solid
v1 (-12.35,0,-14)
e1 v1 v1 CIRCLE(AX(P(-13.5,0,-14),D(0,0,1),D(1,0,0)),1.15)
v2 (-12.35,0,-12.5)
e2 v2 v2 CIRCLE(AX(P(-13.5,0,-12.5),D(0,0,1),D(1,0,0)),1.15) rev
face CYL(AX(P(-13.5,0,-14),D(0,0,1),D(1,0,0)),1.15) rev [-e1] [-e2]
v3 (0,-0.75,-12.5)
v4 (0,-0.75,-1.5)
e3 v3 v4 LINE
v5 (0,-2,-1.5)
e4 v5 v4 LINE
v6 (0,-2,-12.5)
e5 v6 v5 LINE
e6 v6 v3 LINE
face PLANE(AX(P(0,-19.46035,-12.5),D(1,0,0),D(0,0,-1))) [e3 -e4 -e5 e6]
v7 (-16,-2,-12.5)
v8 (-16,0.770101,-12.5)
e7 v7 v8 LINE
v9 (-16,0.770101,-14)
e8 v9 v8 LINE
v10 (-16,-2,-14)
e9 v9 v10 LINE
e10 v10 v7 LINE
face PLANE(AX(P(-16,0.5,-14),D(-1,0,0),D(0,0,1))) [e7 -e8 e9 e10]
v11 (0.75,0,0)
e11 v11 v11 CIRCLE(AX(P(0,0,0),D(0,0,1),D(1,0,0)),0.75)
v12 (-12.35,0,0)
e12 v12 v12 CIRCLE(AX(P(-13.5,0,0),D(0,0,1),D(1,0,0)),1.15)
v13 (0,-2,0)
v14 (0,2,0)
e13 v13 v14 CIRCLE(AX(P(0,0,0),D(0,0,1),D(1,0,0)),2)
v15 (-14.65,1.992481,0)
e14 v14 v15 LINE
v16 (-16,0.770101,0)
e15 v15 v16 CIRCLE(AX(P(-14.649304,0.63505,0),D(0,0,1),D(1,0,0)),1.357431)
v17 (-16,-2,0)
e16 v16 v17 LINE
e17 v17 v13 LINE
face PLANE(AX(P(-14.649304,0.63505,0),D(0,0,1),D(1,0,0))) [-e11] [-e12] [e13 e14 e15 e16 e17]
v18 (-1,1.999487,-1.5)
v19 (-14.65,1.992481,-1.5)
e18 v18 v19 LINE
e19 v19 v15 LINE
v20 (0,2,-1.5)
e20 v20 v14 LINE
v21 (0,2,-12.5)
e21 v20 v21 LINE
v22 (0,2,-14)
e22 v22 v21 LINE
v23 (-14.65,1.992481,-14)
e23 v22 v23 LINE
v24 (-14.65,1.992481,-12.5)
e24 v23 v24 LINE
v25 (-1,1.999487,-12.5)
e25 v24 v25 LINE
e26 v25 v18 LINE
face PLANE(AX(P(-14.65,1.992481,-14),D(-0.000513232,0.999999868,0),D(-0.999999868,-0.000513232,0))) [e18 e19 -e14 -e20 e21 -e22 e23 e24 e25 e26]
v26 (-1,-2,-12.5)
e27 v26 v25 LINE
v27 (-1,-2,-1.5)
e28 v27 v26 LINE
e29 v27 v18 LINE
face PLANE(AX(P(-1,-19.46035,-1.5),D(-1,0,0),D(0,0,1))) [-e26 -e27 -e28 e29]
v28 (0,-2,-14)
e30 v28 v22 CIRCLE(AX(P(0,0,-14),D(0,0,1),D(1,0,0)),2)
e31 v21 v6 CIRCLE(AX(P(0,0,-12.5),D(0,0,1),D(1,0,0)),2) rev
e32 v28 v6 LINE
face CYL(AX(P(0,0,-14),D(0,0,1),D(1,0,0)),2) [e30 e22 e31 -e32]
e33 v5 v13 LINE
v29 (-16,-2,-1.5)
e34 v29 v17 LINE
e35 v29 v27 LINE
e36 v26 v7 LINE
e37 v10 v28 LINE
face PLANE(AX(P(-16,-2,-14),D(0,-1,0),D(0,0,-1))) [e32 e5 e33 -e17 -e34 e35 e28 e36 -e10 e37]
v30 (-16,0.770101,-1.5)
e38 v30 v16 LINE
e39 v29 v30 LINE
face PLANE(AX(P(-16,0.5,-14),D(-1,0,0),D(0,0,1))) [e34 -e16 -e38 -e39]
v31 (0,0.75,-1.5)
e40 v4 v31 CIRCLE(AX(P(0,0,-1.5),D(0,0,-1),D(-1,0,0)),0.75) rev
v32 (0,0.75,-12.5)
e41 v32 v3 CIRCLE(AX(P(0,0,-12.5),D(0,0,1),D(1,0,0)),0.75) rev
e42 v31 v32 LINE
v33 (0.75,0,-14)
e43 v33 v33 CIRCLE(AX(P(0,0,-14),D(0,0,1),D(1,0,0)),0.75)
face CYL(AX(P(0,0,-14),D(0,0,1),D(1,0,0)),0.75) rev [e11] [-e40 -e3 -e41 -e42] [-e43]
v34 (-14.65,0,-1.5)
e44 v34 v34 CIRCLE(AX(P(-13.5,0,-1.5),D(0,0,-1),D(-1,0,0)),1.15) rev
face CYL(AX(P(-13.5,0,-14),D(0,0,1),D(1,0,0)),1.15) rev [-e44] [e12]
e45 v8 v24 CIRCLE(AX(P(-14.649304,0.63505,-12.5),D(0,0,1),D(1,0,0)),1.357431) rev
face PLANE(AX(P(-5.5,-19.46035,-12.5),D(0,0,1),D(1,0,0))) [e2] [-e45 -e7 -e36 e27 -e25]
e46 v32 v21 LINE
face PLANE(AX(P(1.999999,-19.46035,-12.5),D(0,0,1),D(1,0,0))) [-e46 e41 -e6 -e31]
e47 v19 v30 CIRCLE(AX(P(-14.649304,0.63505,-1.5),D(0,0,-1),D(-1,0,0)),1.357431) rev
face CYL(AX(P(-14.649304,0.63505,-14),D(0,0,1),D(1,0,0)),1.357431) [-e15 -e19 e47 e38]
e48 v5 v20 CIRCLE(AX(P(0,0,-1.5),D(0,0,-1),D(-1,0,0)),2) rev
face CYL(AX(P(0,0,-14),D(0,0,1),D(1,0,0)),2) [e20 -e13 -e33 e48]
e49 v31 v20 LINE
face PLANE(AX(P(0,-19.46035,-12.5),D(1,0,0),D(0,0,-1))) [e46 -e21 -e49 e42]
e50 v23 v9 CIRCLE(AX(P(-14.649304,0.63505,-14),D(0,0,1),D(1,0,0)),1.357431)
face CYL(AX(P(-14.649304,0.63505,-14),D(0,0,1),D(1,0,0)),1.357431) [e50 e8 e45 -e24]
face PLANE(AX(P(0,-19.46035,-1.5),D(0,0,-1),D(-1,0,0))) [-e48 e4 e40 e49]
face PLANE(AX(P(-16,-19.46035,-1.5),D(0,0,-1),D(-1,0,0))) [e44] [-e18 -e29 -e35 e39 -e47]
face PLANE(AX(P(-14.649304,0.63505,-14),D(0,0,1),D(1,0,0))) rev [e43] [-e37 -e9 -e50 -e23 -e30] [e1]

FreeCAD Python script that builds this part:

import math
import FreeCAD as App
import Part
import Sketcher

doc = App.newDocument("Part")
params = doc.addObject("Spreadsheet::Sheet", "Params")
for row, (alias, value) in enumerate([
    ("sketch1_radius", "2 mm"),
    ("sketch1_diameter", "1.5 mm"),
    ("sketch1_diameter2", "2.3 mm"),
    ("sketch1_width", "16 mm"),
    ("sketch1_height", "2.5 mm"),
    ("pad1_length", "14 mm"),
    ("sketch2_width", "15 mm"),
    ("sketch2_width2", "17.999999 mm"),
    ("sketch2_width3", "1.999999 mm"),
    ("sketch2_height", "11 mm"),
    ("sketch2_height2", "1.5 mm"),
    ("pocket1_length", "37 mm"),
], start=1):
    params.set(f"A{row}", alias)
    params.set(f"B{row}", "=" + value)
    params.setAlias(f"B{row}", alias)

body = doc.addObject("PartDesign::Body", "Body")

# Sketch on XY plane
sketch1 = body.newObject("Sketcher::SketchObject", "Sketch")
sketch1.AttachmentSupport = (doc.getObject("XY_Plane"), [""])
sketch1.MapMode = "FlatFace"
sketch1.addGeometry([
    Part.LineSegment(App.Vector(0, 2, 0), App.Vector(-14.65, 1.992481, 0)),  # 0
    Part.ArcOfCircle(Part.Circle(App.Vector(-14.649304, 0.63505, 0), App.Vector(0, 0, 1), 1.357431), math.radians(90.029406), math.radians(185.70978)),  # 1
    Part.LineSegment(App.Vector(-16, 0.5, 0), App.Vector(-16, -2, 0)),  # 2
    Part.LineSegment(App.Vector(-16, -2, 0), App.Vector(0, -2, 0)),  # 3
    Part.ArcOfCircle(Part.Circle(App.Vector(0, 0, 0), App.Vector(0, 0, 1), 2), math.radians(-90), math.radians(90.000006)),  # 4
    Part.Circle(App.Vector(0, 0, 0), App.Vector(0, 0, 1), 0.75),  # 5
    Part.Circle(App.Vector(-13.5, 0, 0), App.Vector(0, 0, 1), 1.15),  # 6
], False)
sketch1.addConstraint([
    Sketcher.Constraint("Coincident", 0, 2, 1, 1),
    Sketcher.Constraint("Coincident", 1, 2, 2, 1),
    Sketcher.Constraint("Coincident", 2, 2, 3, 1),
    Sketcher.Constraint("Coincident", 3, 2, 4, 1),
    Sketcher.Constraint("Coincident", 4, 2, 0, 1),
    Sketcher.Constraint("Vertical", 2),
    Sketcher.Constraint("Horizontal", 3),
    Sketcher.Constraint("Coincident", 4, 3, -1, 1),
    Sketcher.Constraint("Coincident", 5, 3, -1, 1),
    Sketcher.Constraint("PointOnObject", 6, 3, -1),
    Sketcher.Constraint("PointOnObject", 3, 2, -2),
    Sketcher.Constraint("PointOnObject", 4, 2, -2),
    Sketcher.Constraint("Radius", 4, 2.0),
    Sketcher.Constraint("Diameter", 5, 1.5),
    Sketcher.Constraint("Diameter", 6, 2.3),
    Sketcher.Constraint("DistanceX", 3, 1, 3, 2, 16.0),
    Sketcher.Constraint("DistanceY", 2, 2, 2, 1, 2.5),
    Sketcher.Constraint("DistanceX", 6, 3, -1, 1, 13.5),
    Sketcher.Constraint("Distance", 0, 14.650002),
    Sketcher.Constraint("Radius", 1, 1.357431),
    Sketcher.Constraint("DistanceY", -1, 1, 1, 3, 0.63505),
])
sketch1.setExpression("Constraints[12]", "Params.sketch1_radius")
sketch1.setExpression("Constraints[13]", "Params.sketch1_diameter")
sketch1.setExpression("Constraints[14]", "Params.sketch1_diameter2")
sketch1.setExpression("Constraints[15]", "Params.sketch1_width")
sketch1.setExpression("Constraints[16]", "Params.sketch1_height")
pad1 = body.newObject("PartDesign::Pad", "Pad")
pad1.Profile = sketch1
pad1.setExpression("Length", "Params.pad1_length")
pad1.Reversed = True

# Sketch on XZ plane
sketch2 = body.newObject("Sketcher::SketchObject", "Sketch001")
sketch2.AttachmentSupport = (doc.getObject("XZ_Plane"), [""])
sketch2.MapMode = "FlatFace"
sketch2.AttachmentOffset = App.Placement(App.Vector(0, 0, -17.53965), App.Rotation())
sketch2.addGeometry([
    Part.LineSegment(App.Vector(5.316, 3.316, 0), App.Vector(5.316, -17.316, 0)),  # 0
    Part.LineSegment(App.Vector(5.316, -17.316, 0), App.Vector(-19.323, -17.316, 0)),  # 1
    Part.LineSegment(App.Vector(-19.323, -17.316, 0), App.Vector(-19.323, 3.316, 0)),  # 2
    Part.LineSegment(App.Vector(-19.323, 3.316, 0), App.Vector(5.316, 3.316, 0)),  # 3
    Part.LineSegment(App.Vector(-1, -12.5, 0), App.Vector(-16, -12.5, 0)),  # 4
    Part.LineSegment(App.Vector(-16, -12.5, 0), App.Vector(-16, -14, 0)),  # 5
    Part.LineSegment(App.Vector(-16, -14, 0), App.Vector(1.999999, -14, 0)),  # 6
    Part.LineSegment(App.Vector(1.999999, -14, 0), App.Vector(1.999999, -12.5, 0)),  # 7
    Part.LineSegment(App.Vector(1.999999, -12.5, 0), App.Vector(0, -12.5, 0)),  # 8
    Part.LineSegment(App.Vector(0, -12.5, 0), App.Vector(0, -1.5, 0)),  # 9
    Part.LineSegment(App.Vector(0, -1.5, 0), App.Vector(1.999999, -1.5, 0)),  # 10
    Part.LineSegment(App.Vector(1.999999, -1.5, 0), App.Vector(1.999999, 0, 0)),  # 11
    Part.LineSegment(App.Vector(1.999999, 0, 0), App.Vector(-16, 0, 0)),  # 12
    Part.LineSegment(App.Vector(-16, 0, 0), App.Vector(-16, -1.5, 0)),  # 13
    Part.LineSegment(App.Vector(-16, -1.5, 0), App.Vector(-1, -1.5, 0)),  # 14
    Part.LineSegment(App.Vector(-1, -1.5, 0), App.Vector(-1, -12.5, 0)),  # 15
], False)
sketch2.addConstraint([
    Sketcher.Constraint("Coincident", 0, 2, 1, 1),
    Sketcher.Constraint("Coincident", 1, 2, 2, 1),
    Sketcher.Constraint("Coincident", 2, 2, 3, 1),
    Sketcher.Constraint("Coincident", 3, 2, 0, 1),
    Sketcher.Constraint("Coincident", 4, 2, 5, 1),
    Sketcher.Constraint("Coincident", 5, 2, 6, 1),
    Sketcher.Constraint("Coincident", 6, 2, 7, 1),
    Sketcher.Constraint("Coincident", 7, 2, 8, 1),
    Sketcher.Constraint("Coincident", 8, 2, 9, 1),
    Sketcher.Constraint("Coincident", 9, 2, 10, 1),
    Sketcher.Constraint("Coincident", 10, 2, 11, 1),
    Sketcher.Constraint("Coincident", 11, 2, 12, 1),
    Sketcher.Constraint("Coincident", 12, 2, 13, 1),
    Sketcher.Constraint("Coincident", 13, 2, 14, 1),
    Sketcher.Constraint("Coincident", 14, 2, 15, 1),
    Sketcher.Constraint("Coincident", 15, 2, 4, 1),
    Sketcher.Constraint("Vertical", 0),
    Sketcher.Constraint("Horizontal", 1),
    Sketcher.Constraint("Vertical", 2),
    Sketcher.Constraint("Horizontal", 3),
    Sketcher.Constraint("Horizontal", 4),
    Sketcher.Constraint("Vertical", 5),
    Sketcher.Constraint("Horizontal", 6),
    Sketcher.Constraint("Vertical", 7),
    Sketcher.Constraint("Horizontal", 8),
    Sketcher.Constraint("Vertical", 9),
    Sketcher.Constraint("Horizontal", 10),
    Sketcher.Constraint("Vertical", 11),
    Sketcher.Constraint("Horizontal", 12),
    Sketcher.Constraint("Vertical", 13),
    Sketcher.Constraint("Horizontal", 14),
    Sketcher.Constraint("Vertical", 15),
    Sketcher.Constraint("PointOnObject", 8, 2, -2),
    Sketcher.Constraint("PointOnObject", 11, 2, -1),
    Sketcher.Constraint("Horizontal", 4, 2, 7, 2),
    Sketcher.Constraint("Horizontal", 10, 2, 13, 2),
    Sketcher.Constraint("Vertical", 7, 2, 10, 2),
    Sketcher.Constraint("Vertical", 5, 2, 12, 2),
    Sketcher.Constraint("Equal", 7, 11),
    Sketcher.Constraint("DistanceX", 4, 2, 4, 1, 15.0),
    Sketcher.Constraint("DistanceX", 6, 1, 6, 2, 17.999999),
    Sketcher.Constraint("DistanceX", 8, 2, 8, 1, 1.999999),
    Sketcher.Constraint("DistanceY", 9, 1, 9, 2, 11.0),
    Sketcher.Constraint("DistanceY", 5, 2, 5, 1, 1.5),
    Sketcher.Constraint("DistanceX", 1, 2, 1, 1, 24.639),
    Sketcher.Constraint("DistanceY", 0, 2, 0, 1, 20.632),
    Sketcher.Constraint("DistanceX", -1, 1, 0, 2, 5.316),
    Sketcher.Constraint("DistanceY", 0, 2, -1, 1, 17.316),
])
sketch2.setExpression("Constraints[39]", "Params.sketch2_width")
sketch2.setExpression("Constraints[40]", "Params.sketch2_width2")
sketch2.setExpression("Constraints[41]", "Params.sketch2_width3")
sketch2.setExpression("Constraints[42]", "Params.sketch2_height")
sketch2.setExpression("Constraints[43]", "Params.sketch2_height2")
pocket1 = body.newObject("PartDesign::Pocket", "Pocket")
pocket1.Profile = sketch2
pocket1.setExpression("Length", "Params.pocket1_length")
pocket1.Reversed = True

doc.recompute()
